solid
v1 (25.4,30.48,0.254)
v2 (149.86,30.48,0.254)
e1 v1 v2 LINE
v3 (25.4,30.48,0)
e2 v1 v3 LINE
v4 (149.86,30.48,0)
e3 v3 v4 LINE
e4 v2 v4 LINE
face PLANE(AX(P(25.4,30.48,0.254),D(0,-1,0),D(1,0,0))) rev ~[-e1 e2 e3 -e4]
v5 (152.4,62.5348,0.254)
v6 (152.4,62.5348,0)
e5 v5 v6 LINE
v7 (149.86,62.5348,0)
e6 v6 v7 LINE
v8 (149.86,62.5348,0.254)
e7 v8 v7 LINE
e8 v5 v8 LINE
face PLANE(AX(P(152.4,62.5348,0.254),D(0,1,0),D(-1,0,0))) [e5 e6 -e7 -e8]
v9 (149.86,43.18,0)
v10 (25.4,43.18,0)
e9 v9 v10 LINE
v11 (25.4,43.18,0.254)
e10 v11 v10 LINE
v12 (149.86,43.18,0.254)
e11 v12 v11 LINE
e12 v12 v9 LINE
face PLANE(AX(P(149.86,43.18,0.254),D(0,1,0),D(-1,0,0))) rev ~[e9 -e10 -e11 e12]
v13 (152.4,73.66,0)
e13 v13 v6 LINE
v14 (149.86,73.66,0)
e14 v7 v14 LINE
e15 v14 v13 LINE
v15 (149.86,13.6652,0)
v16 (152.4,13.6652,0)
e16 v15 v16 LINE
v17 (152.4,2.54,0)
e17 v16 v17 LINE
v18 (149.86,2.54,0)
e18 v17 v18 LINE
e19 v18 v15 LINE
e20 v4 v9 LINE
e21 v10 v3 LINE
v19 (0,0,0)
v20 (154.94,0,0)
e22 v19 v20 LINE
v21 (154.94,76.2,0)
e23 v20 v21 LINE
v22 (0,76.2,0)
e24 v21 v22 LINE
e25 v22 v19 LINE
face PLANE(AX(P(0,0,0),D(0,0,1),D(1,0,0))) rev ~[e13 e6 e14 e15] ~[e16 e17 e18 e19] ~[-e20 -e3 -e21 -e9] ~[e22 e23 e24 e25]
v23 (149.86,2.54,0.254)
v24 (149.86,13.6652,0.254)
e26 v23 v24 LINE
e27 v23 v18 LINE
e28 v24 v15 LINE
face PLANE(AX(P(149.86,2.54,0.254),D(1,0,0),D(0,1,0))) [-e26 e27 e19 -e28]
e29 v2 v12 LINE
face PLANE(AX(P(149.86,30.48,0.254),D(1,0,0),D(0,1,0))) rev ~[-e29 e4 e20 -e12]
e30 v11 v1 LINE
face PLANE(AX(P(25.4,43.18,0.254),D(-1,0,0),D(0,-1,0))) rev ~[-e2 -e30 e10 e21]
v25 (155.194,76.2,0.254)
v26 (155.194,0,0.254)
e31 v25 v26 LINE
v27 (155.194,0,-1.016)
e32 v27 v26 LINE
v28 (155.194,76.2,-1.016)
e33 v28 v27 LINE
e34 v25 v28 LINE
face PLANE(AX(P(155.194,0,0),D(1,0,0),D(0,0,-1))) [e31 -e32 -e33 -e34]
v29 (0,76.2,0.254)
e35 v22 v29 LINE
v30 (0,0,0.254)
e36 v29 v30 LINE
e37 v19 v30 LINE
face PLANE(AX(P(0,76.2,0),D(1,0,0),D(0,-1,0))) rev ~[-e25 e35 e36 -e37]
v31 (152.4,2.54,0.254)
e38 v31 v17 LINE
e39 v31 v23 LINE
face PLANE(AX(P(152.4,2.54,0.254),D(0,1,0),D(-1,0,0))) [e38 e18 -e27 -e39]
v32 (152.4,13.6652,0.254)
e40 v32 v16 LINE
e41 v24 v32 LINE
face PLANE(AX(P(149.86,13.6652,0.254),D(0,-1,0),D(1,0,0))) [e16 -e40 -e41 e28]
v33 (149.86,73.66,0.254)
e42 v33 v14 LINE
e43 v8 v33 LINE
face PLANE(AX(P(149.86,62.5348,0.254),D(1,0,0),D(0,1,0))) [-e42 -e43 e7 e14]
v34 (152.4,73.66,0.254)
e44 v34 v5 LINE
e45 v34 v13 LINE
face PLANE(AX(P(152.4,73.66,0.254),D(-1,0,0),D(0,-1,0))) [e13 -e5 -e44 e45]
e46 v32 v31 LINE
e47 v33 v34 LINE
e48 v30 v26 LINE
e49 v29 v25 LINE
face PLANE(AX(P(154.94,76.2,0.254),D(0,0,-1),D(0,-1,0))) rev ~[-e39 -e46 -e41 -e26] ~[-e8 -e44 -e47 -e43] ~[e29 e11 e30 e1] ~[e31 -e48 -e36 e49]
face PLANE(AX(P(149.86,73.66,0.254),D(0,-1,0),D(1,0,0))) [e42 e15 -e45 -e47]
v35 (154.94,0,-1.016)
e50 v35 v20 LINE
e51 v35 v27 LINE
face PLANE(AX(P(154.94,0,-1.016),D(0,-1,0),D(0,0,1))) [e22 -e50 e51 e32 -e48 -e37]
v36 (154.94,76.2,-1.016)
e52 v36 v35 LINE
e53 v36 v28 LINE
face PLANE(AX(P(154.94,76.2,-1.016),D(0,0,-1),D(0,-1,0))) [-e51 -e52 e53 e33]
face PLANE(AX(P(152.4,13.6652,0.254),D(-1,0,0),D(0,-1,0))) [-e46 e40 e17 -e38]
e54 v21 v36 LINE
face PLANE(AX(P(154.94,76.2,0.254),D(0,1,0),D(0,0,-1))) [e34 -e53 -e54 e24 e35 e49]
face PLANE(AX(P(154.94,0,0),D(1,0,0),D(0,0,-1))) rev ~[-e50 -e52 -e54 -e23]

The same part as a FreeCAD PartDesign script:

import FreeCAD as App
import Part
import Sketcher
from FreeCAD import Vector
Q = App.Units.Quantity


def add_polygon(sketch, points):
    """Adds a closed chain of lines whose ends are joined by coincident constraints."""
    first, n = sketch.GeometryCount, len(points)
    for a, b in zip(points, points[1:] + points[:1]):
        sketch.addGeometry(Part.LineSegment(App.Vector(*a, 0), App.Vector(*b, 0)), False)
    for i in range(n):
        sketch.addConstraint(Sketcher.Constraint("Coincident", first + i, 2, first + (i + 1) % n, 1))

doc = App.newDocument("Part")
params = doc.addObject("Spreadsheet::Sheet", "Params")
for row, (alias, value) in enumerate([
    ("sketch1_height", "3 in"),
    ("sketch1_width", "6.1 in"),
    ("pad1_length", "0.01 in"),
    ("sketch2_width", "0.1 in"),
    ("sketch2_height", "0.438 in"),
    ("pocket1_length", "1 in"),
    ("sketch3_height", "0.05 in"),
    ("sketch3_width", "3 in"),
    ("pad2_length", "0.01 in"),
    ("sketch4_height", "0.5 in"),
    ("sketch4_width", "4.9 in"),
    ("pocket2_length", "1 in"),
], start=1):
    params.set(f"A{row}", alias)
    params.set(f"B{row}", "=" + value)
    params.setAlias(f"B{row}", alias)

body = doc.addObject("PartDesign::Body", "Body")

# Sketch on XY plane
sketch1 = body.newObject("Sketcher::SketchObject", "Sketch")
sketch1.AttachmentSupport = (doc.getObject("XY_Plane"), [""])
sketch1.MapMode = "FlatFace"
add_polygon(sketch1, [(0, 76), (0, 0), (155, 0), (155, 76)])  # lines 0-3
sketch1.addConstraint([
    Sketcher.Constraint("Vertical", 0),
    Sketcher.Constraint("Horizontal", 1),
    Sketcher.Constraint("Vertical", 2),
    Sketcher.Constraint("Horizontal", 3),
    Sketcher.Constraint("Coincident", 0, 2, -1, 1),
    Sketcher.Constraint("DistanceY", 0, 2, 0, 1, Q("3 in")),
    Sketcher.Constraint("DistanceX", 1, 1, 1, 2, Q("6.1 in")),
])
sketch1.setExpression("Constraints[9]", "Params.sketch1_height")
sketch1.setExpression("Constraints[10]", "Params.sketch1_width")
pad1 = body.newObject("PartDesign::Pad", "Pad")
pad1.Profile = sketch1
pad1.setExpression("Length", "Params.pad1_length")

# Sketch on XY plane
sketch2 = body.newObject("Sketcher::SketchObject", "Sketch001")
sketch2.AttachmentSupport = (doc.getObject("XY_Plane"), [""])
sketch2.MapMode = "FlatFace"
sketch2.AttachmentOffset = App.Placement(Vector(0, 0, 0.01 * 25.4), App.Rotation())
add_polygon(sketch2, [(152.4, 73.7), (149.9, 73.7), (149.9, 62.5), (152.4, 62.5)])  # lines 0-3
add_polygon(sketch2, [(152.4, 13.7), (149.9, 13.7), (149.9, 2.5), (152.4, 2.5)])  # lines 4-7
sketch2.addConstraint([
    Sketcher.Constraint("Horizontal", 0),
    Sketcher.Constraint("Vertical", 1),
    Sketcher.Constraint("Horizontal", 2),
    Sketcher.Constraint("Vertical", 3),
    Sketcher.Constraint("Horizontal", 4),
    Sketcher.Constraint("Vertical", 5),
    Sketcher.Constraint("Horizontal", 6),
    Sketcher.Constraint("Vertical", 7),
    Sketcher.Constraint("Vertical", 1, 2, 4, 2),
    Sketcher.Constraint("Vertical", 3, 2, 6, 2),
    Sketcher.Constraint("Equal", 3, 5),
    Sketcher.Constraint("DistanceX", 0, 2, 0, 1, Q("0.1 in")),
    Sketcher.Constraint("DistanceY", -1, 1, 5, 2, Q("0.1 in")),
    Sketcher.Constraint("DistanceY", 1, 2, 1, 1, Q("0.438 in")),
    Sketcher.Constraint("DistanceX", -1, 1, 2, 2, Q("6 in")),
    Sketcher.Constraint("DistanceY", -1, 1, 0, 2, Q("2.9 in")),
])
sketch2.setExpression("Constraints[19]", "Params.sketch2_width")
sketch2.setExpression("Constraints[21]", "Params.sketch2_height")
pocket1 = body.newObject("PartDesign::Pocket", "Pocket")
pocket1.Profile = sketch2
pocket1.setExpression("Length", "Params.pocket1_length")

# Sketch on YZ plane
sketch3 = body.newObject("Sketcher::SketchObject", "Sketch002")
sketch3.AttachmentSupport = (doc.getObject("YZ_Plane"), [""])
sketch3.MapMode = "FlatFace"
sketch3.AttachmentOffset = App.Placement(Vector(0, 0, 6.1 * 25.4), App.Rotation())
add_polygon(sketch3, [(76.2, -1), (76.2, 0.3), (0, 0.3), (0, -1)])  # lines 0-3
sketch3.addConstraint([
    Sketcher.Constraint("Vertical", 0),
    Sketcher.Constraint("Horizontal", 1),
    Sketcher.Constraint("Vertical", 2),
    Sketcher.Constraint("Horizontal", 3),
    Sketcher.Constraint("PointOnObject", 1, 2, -2),
    Sketcher.Constraint("DistanceY", 0, 1, 0, 2, Q("0.05 in")),
    Sketcher.Constraint("DistanceX", 1, 2, 1, 1, Q("3 in")),
    Sketcher.Constraint("DistanceY", -1, 1, 0, 2, Q("0.01 in")),
])
sketch3.setExpression("Constraints[9]", "Params.sketch3_height")
sketch3.setExpression("Constraints[10]", "Params.sketch3_width")
pad2 = body.newObject("PartDesign::Pad", "Pad001")
pad2.Profile = sketch3
pad2.setExpression("Length", "Params.pad2_length")

# Sketch on XY plane
sketch4 = body.newObject("Sketcher::SketchObject", "Sketch003")
sketch4.AttachmentSupport = (doc.getObject("XY_Plane"), [""])
sketch4.MapMode = "FlatFace"
sketch4.AttachmentOffset = App.Placement(Vector(0, 0, 0.01 * 25.4), App.Rotation())
add_polygon(sketch4, [(150, 30), (150, 43), (25, 43), (25, 30)])  # lines 0-3
sketch4.addConstraint([
    Sketcher.Constraint("Vertical", 0),
    Sketcher.Constraint("Horizontal", 1),
    Sketcher.Constraint("Vertical", 2),
    Sketcher.Constraint("Horizontal", 3),
    Sketcher.Constraint("DistanceY", 0, 1, 0, 2, Q("0.5 in")),
    Sketcher.Constraint("DistanceX", -1, 1, 1, 2, Q("1 in")),
    Sketcher.Constraint("DistanceX", 1, 2, 1, 1, Q("4.9 in")),
    Sketcher.Constraint("DistanceY", -1, 1, 0, 2, Q("1.7 in")),
])
sketch4.setExpression("Constraints[8]", "Params.sketch4_height")
sketch4.setExpression("Constraints[10]", "Params.sketch4_width")
pocket2 = body.newObject("PartDesign::Pocket", "Pocket001")
pocket2.Profile = sketch4
pocket2.setExpression("Length", "Params.pocket2_length")

doc.recompute()
